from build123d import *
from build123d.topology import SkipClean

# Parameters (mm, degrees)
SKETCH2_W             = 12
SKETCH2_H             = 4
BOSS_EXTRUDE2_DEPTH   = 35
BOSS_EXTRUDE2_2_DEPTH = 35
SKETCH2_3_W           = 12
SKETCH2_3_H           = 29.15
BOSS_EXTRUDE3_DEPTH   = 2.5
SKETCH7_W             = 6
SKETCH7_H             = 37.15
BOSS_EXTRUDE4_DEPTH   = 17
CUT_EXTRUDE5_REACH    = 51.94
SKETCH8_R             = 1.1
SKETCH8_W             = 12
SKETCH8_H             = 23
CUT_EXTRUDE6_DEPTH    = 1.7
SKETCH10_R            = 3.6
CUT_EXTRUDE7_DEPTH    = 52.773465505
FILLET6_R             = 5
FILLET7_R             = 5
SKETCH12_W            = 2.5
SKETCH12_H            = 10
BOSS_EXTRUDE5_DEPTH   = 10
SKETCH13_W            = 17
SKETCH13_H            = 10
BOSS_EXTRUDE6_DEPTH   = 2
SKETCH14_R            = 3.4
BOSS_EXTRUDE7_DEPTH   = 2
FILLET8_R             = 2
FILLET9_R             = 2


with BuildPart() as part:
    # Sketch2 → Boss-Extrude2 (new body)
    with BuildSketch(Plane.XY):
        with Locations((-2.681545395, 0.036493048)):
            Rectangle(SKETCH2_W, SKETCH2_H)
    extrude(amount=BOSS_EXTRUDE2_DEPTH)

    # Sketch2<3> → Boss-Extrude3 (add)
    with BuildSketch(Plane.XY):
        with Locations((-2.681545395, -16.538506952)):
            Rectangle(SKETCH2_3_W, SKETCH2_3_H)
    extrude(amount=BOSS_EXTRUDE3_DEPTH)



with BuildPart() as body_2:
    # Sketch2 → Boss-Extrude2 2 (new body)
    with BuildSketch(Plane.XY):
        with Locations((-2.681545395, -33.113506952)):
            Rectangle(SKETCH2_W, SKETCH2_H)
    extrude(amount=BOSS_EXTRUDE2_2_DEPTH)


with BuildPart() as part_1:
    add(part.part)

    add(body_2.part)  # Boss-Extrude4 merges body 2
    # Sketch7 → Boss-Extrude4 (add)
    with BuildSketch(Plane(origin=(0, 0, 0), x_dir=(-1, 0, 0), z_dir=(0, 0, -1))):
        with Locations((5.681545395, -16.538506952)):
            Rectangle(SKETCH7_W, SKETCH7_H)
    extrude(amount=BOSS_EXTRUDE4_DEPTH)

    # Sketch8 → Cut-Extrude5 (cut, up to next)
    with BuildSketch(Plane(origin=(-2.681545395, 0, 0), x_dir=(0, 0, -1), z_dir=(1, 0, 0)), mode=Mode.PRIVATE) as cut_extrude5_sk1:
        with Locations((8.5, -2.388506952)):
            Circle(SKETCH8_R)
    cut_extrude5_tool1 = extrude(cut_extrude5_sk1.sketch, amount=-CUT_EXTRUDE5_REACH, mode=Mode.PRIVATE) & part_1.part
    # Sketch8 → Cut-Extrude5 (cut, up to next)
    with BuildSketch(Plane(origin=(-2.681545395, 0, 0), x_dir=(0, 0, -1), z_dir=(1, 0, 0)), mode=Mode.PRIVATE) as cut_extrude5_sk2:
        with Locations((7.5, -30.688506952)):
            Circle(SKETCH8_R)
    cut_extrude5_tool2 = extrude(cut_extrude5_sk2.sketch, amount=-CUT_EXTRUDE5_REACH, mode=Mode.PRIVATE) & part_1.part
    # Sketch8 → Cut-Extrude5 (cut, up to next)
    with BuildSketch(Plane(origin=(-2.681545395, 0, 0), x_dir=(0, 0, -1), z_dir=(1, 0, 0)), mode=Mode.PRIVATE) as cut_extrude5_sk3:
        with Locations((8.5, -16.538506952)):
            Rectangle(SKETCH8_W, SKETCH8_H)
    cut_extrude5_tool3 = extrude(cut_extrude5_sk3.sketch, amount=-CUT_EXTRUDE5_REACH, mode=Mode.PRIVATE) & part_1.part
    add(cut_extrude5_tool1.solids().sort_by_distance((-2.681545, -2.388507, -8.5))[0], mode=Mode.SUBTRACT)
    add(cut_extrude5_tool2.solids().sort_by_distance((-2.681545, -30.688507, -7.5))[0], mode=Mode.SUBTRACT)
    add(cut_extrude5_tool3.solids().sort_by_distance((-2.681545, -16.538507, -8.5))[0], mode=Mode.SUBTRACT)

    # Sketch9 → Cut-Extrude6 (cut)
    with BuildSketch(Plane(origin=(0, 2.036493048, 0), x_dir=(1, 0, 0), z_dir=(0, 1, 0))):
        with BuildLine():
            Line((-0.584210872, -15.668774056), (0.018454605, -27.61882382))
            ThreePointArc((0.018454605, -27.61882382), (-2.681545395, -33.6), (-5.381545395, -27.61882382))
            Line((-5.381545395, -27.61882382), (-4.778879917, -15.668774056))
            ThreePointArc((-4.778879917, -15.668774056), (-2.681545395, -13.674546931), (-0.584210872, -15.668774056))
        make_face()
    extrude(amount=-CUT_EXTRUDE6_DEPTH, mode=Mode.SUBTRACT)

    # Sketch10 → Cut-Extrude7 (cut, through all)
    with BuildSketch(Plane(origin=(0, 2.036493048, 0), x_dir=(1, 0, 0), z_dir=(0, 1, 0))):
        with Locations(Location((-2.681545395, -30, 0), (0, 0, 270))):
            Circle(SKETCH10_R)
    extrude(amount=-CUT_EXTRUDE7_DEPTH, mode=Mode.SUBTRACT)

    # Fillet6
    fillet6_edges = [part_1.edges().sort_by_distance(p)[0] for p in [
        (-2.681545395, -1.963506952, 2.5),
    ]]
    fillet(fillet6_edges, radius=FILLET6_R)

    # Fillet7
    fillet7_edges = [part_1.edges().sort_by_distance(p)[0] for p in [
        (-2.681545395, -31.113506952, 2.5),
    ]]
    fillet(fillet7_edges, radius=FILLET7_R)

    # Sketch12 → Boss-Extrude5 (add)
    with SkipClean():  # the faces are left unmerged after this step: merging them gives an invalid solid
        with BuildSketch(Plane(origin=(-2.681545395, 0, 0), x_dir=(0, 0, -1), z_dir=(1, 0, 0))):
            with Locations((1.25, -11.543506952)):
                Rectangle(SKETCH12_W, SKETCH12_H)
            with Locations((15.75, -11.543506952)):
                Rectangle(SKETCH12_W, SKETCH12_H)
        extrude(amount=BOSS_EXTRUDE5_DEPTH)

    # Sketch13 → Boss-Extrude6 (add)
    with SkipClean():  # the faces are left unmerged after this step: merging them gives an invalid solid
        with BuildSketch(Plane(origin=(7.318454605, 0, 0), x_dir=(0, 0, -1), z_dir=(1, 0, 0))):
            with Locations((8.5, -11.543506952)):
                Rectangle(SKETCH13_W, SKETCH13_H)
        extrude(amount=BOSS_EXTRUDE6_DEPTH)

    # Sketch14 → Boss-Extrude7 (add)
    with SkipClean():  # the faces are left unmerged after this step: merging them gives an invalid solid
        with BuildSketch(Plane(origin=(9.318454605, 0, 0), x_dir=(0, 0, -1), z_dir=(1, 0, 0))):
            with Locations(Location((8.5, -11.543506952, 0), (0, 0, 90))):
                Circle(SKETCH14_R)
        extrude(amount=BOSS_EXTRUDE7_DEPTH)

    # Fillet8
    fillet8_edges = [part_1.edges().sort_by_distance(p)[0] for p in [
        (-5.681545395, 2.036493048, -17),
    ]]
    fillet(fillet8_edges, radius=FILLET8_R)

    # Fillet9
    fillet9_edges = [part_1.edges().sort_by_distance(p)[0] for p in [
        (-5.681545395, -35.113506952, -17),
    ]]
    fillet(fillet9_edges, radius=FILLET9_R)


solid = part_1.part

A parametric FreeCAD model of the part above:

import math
import FreeCAD as App
import Part
import Sketcher

V = App.Vector


def edges_at(feature, points):
    """Names of the edges that pass closest to the given points."""
    edges = feature.Shape.Edges
    near = lambda p: min(range(len(edges)), key=lambda i: edges[i].distToShape(Part.Vertex(*p))[0])
    return sorted({f"Edge{near(p) + 1}" for p in points})


def add_polygon(sketch, points):
    """Adds a closed chain of lines whose ends are joined by coincident constraints."""
    first, n = sketch.GeometryCount, len(points)
    for a, b in zip(points, points[1:] + points[:1]):
        sketch.addGeometry(Part.LineSegment(App.Vector(*a, 0), App.Vector(*b, 0)), False)
    for i in range(n):
        sketch.addConstraint(Sketcher.Constraint("Coincident", first + i, 2, first + (i + 1) % n, 1))

doc = App.newDocument("Part")
params = doc.addObject("Spreadsheet::Sheet", "Params")
for row, (alias, value) in enumerate([
    ("sketch1_width", "12 mm"),
    ("sketch1_height", "4 mm"),
    ("pad1_length", "35 mm"),
    ("sketch2_width", "12 mm"),
    ("sketch2_height", "29.15 mm"),
    ("pad2_length", "2.5 mm"),
    ("sketch3_width", "12 mm"),
    ("sketch3_height", "4 mm"),
    ("pad3_length", "35 mm"),
    ("sketch4_width", "6 mm"),
    ("sketch4_height", "37.15 mm"),
    ("pad4_length", "17 mm"),
    ("sketch5_diameter", "2.2 mm"),
    ("sketch6_diameter", "2.2 mm"),
    ("sketch7_width", "23 mm"),
    ("sketch7_height", "12 mm"),
    ("sketch8_radius", "2.1 mm"),
    ("sketch8_radius2", "3.6 mm"),
    ("pocket4_length", "1.7 mm"),
    ("sketch9_diameter", "7.2 mm"),
    ("fillet_radius", "5 mm"),
    ("fillet2_radius", "5 mm"),
    ("sketch10_width", "10 mm"),
    ("sketch10_height", "2.5 mm"),
    ("pad5_length", "10 mm"),
    ("sketch11_width", "10 mm"),
    ("sketch11_height", "17 mm"),
    ("pad6_length", "2 mm"),
    ("sketch12_diameter", "6.8 mm"),
    ("pad7_length", "2 mm"),
    ("fillet3_radius", "2 mm"),
    ("fillet4_radius", "2 mm"),
], start=1):
    params.set(f"A{row}", alias)
    params.set(f"B{row}", "=" + value)
    params.setAlias(f"B{row}", alias)

body = doc.addObject("PartDesign::Body", "Body")

# Sketch on XY plane
sketch1 = body.newObject("Sketcher::SketchObject", "Sketch")
sketch1.AttachmentSupport = (doc.getObject("XY_Plane"), [""])
sketch1.MapMode = "FlatFace"
add_polygon(sketch1, [(-8.681545, 2.036493), (-8.681545, -1.963507), (3.318455, -1.963507), (3.318455, 2.036493)])  # lines 0-3
sketch1.addConstraint([
    Sketcher.Constraint("Vertical", 0),
    Sketcher.Constraint("Horizontal", 1),
    Sketcher.Constraint("Vertical", 2),
    Sketcher.Constraint("Horizontal", 3),
    Sketcher.Constraint("DistanceX", 1, 1, 1, 2, 12.0),
    Sketcher.Constraint("DistanceY", 0, 2, 0, 1, 4.0),
    Sketcher.Constraint("DistanceX", 0, 2, -1, 1, 8.681545),
    Sketcher.Constraint("DistanceY", 0, 2, -1, 1, 1.963507),
])
sketch1.setExpression("Constraints[8]", "Params.sketch1_width")
sketch1.setExpression("Constraints[9]", "Params.sketch1_height")
pad1 = body.newObject("PartDesign::Pad", "Pad")
pad1.Profile = sketch1
pad1.setExpression("Length", "Params.pad1_length")

# Sketch on XY plane
sketch2 = body.newObject("Sketcher::SketchObject", "Sketch001")
sketch2.AttachmentSupport = (doc.getObject("XY_Plane"), [""])
sketch2.MapMode = "FlatFace"
add_polygon(sketch2, [(-8.681545, -1.963507), (-8.681545, -31.113507), (3.318455, -31.113507), (3.318455, -1.963507)])  # lines 0-3
sketch2.addConstraint([
    Sketcher.Constraint("Vertical", 0),
    Sketcher.Constraint("Horizontal", 1),
    Sketcher.Constraint("Vertical", 2),
    Sketcher.Constraint("Horizontal", 3),
    Sketcher.Constraint("DistanceX", 1, 1, 1, 2, 12.0),
    Sketcher.Constraint("DistanceY", 0, 2, 0, 1, 29.15),
    Sketcher.Constraint("DistanceX", 0, 2, -1, 1, 8.681545),
    Sketcher.Constraint("DistanceY", 0, 2, -1, 1, 31.113507),
])
sketch2.setExpression("Constraints[8]", "Params.sketch2_width")
sketch2.setExpression("Constraints[9]", "Params.sketch2_height")
pad2 = body.newObject("PartDesign::Pad", "Pad001")
pad2.Profile = sketch2
pad2.setExpression("Length", "Params.pad2_length")
body2 = doc.addObject("PartDesign::Body", "Body001")

# Sketch on XY plane
sketch3 = body2.newObject("Sketcher::SketchObject", "Sketch002")
sketch3.AttachmentSupport = (doc.getObject("XY_Plane001"), [""])
sketch3.MapMode = "FlatFace"
add_polygon(sketch3, [(-8.681545, -31.113507), (-8.681545, -35.113507), (3.318455, -35.113507), (3.318455, -31.113507)])  # lines 0-3
sketch3.addConstraint([
    Sketcher.Constraint("Vertical", 0),
    Sketcher.Constraint("Horizontal", 1),
    Sketcher.Constraint("Vertical", 2),
    Sketcher.Constraint("Horizontal", 3),
    Sketcher.Constraint("DistanceX", 1, 1, 1, 2, 12.0),
    Sketcher.Constraint("DistanceY", 0, 2, 0, 1, 4.0),
    Sketcher.Constraint("DistanceX", 0, 2, -1, 1, 8.681545),
    Sketcher.Constraint("DistanceY", 0, 2, -1, 1, 35.113507),
])
sketch3.setExpression("Constraints[8]", "Params.sketch3_width")
sketch3.setExpression("Constraints[9]", "Params.sketch3_height")
pad3 = body2.newObject("PartDesign::Pad", "Pad002")
pad3.Profile = sketch3
pad3.setExpression("Length", "Params.pad3_length")
doc.recompute()

boolean = body.newObject("PartDesign::Boolean", "Boolean")
boolean.Type = "Fuse"
boolean.addObjects([body2])

# Sketch on XY plane
sketch4 = body.newObject("Sketcher::SketchObject", "Sketch003")
sketch4.AttachmentSupport = (doc.getObject("XY_Plane"), [""])
sketch4.MapMode = "FlatFace"
add_polygon(sketch4, [(-2.681545, 2.036493), (-2.681545, -35.113507), (-8.681545, -35.113507), (-8.681545, 2.036493)])  # lines 0-3
sketch4.addConstraint([
    Sketcher.Constraint("Vertical", 0),
    Sketcher.Constraint("Horizontal", 1),
    Sketcher.Constraint("Vertical", 2),
    Sketcher.Constraint("Horizontal", 3),
    Sketcher.Constraint("DistanceX", 1, 2, 1, 1, 6.0),
    Sketcher.Constraint("DistanceY", 0, 2, 0, 1, 37.15),
    Sketcher.Constraint("DistanceX", 0, 2, -1, 1, 2.681545),
    Sketcher.Constraint("DistanceY", 0, 2, -1, 1, 35.113507),
])
sketch4.setExpression("Constraints[8]", "Params.sketch4_width")
sketch4.setExpression("Constraints[9]", "Params.sketch4_height")
pad4 = body.newObject("PartDesign::Pad", "Pad003")
pad4.Profile = sketch4
pad4.setExpression("Length", "Params.pad4_length")
pad4.Reversed = True

# Sketch on YZ plane
sketch5 = body.newObject("Sketcher::SketchObject", "Sketch004")
sketch5.AttachmentSupport = (doc.getObject("YZ_Plane"), [""])
sketch5.MapMode = "FlatFace"
sketch5.AttachmentOffset = App.Placement(V(0, 0, -2.681545), App.Rotation())
sketch5.addGeometry(Part.Circle(V(-2.388507, -8.5, 0), V(0, 0, 1), 1.1), False)
sketch5.addConstraint([
    Sketcher.Constraint("Diameter", 0, 2.2),
    Sketcher.Constraint("DistanceY", 0, 3, -1, 1, 8.5),
    Sketcher.Constraint("DistanceX", 0, 3, -1, 1, 2.388507),
])
sketch5.setExpression("Constraints[0]", "Params.sketch5_diameter")
pocket1 = body.newObject("PartDesign::Pocket", "Pocket")
pocket1.Profile = sketch5
pocket1.Type = "UpToFirst"

# Sketch on YZ plane
sketch6 = body.newObject("Sketcher::SketchObject", "Sketch005")
sketch6.AttachmentSupport = (doc.getObject("YZ_Plane"), [""])
sketch6.MapMode = "FlatFace"
sketch6.AttachmentOffset = App.Placement(V(0, 0, -2.681545), App.Rotation())
sketch6.addGeometry(Part.Circle(V(-30.688507, -7.5, 0), V(0, 0, 1), 1.1), False)
sketch6.addConstraint([
    Sketcher.Constraint("Diameter", 0, 2.2),
    Sketcher.Constraint("DistanceY", 0, 3, -1, 1, 7.5),
    Sketcher.Constraint("DistanceX", 0, 3, -1, 1, 30.688507),
])
sketch6.setExpression("Constraints[0]", "Params.sketch6_diameter")
pocket2 = body.newObject("PartDesign::Pocket", "Pocket001")
pocket2.Profile = sketch6
pocket2.Type = "UpToFirst"

# Sketch on YZ plane
sketch7 = body.newObject("Sketcher::SketchObject", "Sketch006")
sketch7.AttachmentSupport = (doc.getObject("YZ_Plane"), [""])
sketch7.MapMode = "FlatFace"
sketch7.AttachmentOffset = App.Placement(V(0, 0, -2.681545), App.Rotation())
add_polygon(sketch7, [(-5.038507, -2.5), (-28.038507, -2.5), (-28.038507, -14.5), (-5.038507, -14.5)])  # lines 0-3
sketch7.addConstraint([
    Sketcher.Constraint("Horizontal", 0),
    Sketcher.Constraint("Vertical", 1),
    Sketcher.Constraint("Horizontal", 2),
    Sketcher.Constraint("Vertical", 3),
    Sketcher.Constraint("DistanceX", 0, 2, 0, 1, 23.0),
    Sketcher.Constraint("DistanceY", 1, 2, 1, 1, 12.0),
    Sketcher.Constraint("DistanceY", 0, 2, -1, 1, 2.5),
    Sketcher.Constraint("DistanceX", 0, 2, -1, 1, 28.038507),
])
sketch7.setExpression("Constraints[8]", "Params.sketch7_width")
sketch7.setExpression("Constraints[9]", "Params.sketch7_height")
pocket3 = body.newObject("PartDesign::Pocket", "Pocket002")
pocket3.Profile = sketch7
pocket3.Type = "UpToFirst"

# Sketch on XZ plane
sketch8 = body.newObject("Sketcher::SketchObject", "Sketch007")
sketch8.AttachmentSupport = (doc.getObject("XZ_Plane"), [""])
sketch8.MapMode = "FlatFace"
sketch8.AttachmentOffset = App.Placement(V(0, 0, -2.036493), App.Rotation())
sketch8.addGeometry([
    Part.LineSegment(V(0.018455, 27.618824, 0), V(-0.584211, 15.668774, 0)),
    Part.ArcOfCircle(Part.Circle(V(-2.681545, 15.774547, 0), V(0, 0, 1), 2.1), math.radians(-177.112903), math.radians(-2.887097)),
    Part.LineSegment(V(-4.77888, 15.668774, 0), V(-5.381545, 27.618824, 0)),
    Part.ArcOfCircle(Part.Circle(V(-2.681545, 30, 0), V(0, 0, 1), 3.6), math.radians(-41.409622), math.radians(221.409622)),
], False)
sketch8.addConstraint([
    Sketcher.Constraint("Tangent", 0, 2, 1, 2),
    Sketcher.Constraint("Tangent", 1, 1, 2, 1),
    Sketcher.Constraint("Coincident", 2, 2, 3, 2),
    Sketcher.Constraint("Coincident", 3, 1, 0, 1),
    Sketcher.Constraint("Horizontal", 0, 2, 1, 1),
    Sketcher.Constraint("Horizontal", 2, 2, 3, 1),
    Sketcher.Constraint("Radius", 1, 2.1),
    Sketcher.Constraint("Radius", 3, 3.6),
    Sketcher.Constraint("DistanceY", -1, 1, 3, 3, 30.0),
    Sketcher.Constraint("DistanceX", 2, 2, 3, 3, 2.7),
    Sketcher.Constraint("DistanceX", 0, 2, -1, 1, 0.584211),
    Sketcher.Constraint("DistanceY", 1, 1, 2, 2, 11.95005),
])
sketch8.setExpression("Constraints[6]", "Params.sketch8_radius")
sketch8.setExpression("Constraints[7]", "Params.sketch8_radius2")
pocket4 = body.newObject("PartDesign::Pocket", "Pocket003")
pocket4.Profile = sketch8
pocket4.setExpression("Length", "Params.pocket4_length")
pocket4.Reversed = True

# Sketch on XZ plane
sketch9 = body.newObject("Sketcher::SketchObject", "Sketch008")
sketch9.AttachmentSupport = (doc.getObject("XZ_Plane"), [""])
sketch9.MapMode = "FlatFace"
sketch9.AttachmentOffset = App.Placement(V(0, 0, -2.036493), App.Rotation())
sketch9.addGeometry(Part.Circle(V(-2.681545, 30, 0), V(0, 0, 1), 3.6), False)
sketch9.addConstraint([
    Sketcher.Constraint("Diameter", 0, 7.2),
    Sketcher.Constraint("DistanceY", -1, 1, 0, 3, 30.0),
    Sketcher.Constraint("DistanceX", 0, 3, -1, 1, 2.681545),
])
sketch9.setExpression("Constraints[0]", "Params.sketch9_diameter")
pocket5 = body.newObject("PartDesign::Pocket", "Pocket004")
pocket5.Profile = sketch9
pocket5.Type = "ThroughAll"
pocket5.Reversed = True
doc.recompute()

fillet = body.newObject("PartDesign::Fillet", "Fillet")
fillet.Base = (pocket5, edges_at(pocket5, [(-2.682, -1.964, 2.5)]))
fillet.setExpression("Radius", "Params.fillet_radius")
doc.recompute()

fillet2 = body.newObject("PartDesign::Fillet", "Fillet001")
fillet2.Base = (fillet, edges_at(fillet, [(-2.682, -31.114, 2.5)]))
fillet2.setExpression("Radius", "Params.fillet2_radius")

# Sketch on YZ plane
sketch10 = body.newObject("Sketcher::SketchObject", "Sketch009")
sketch10.AttachmentSupport = (doc.getObject("YZ_Plane"), [""])
sketch10.MapMode = "FlatFace"
sketch10.AttachmentOffset = App.Placement(V(0, 0, -2.681545), App.Rotation())
add_polygon(sketch10, [(-6.543507, 0), (-16.543507, 0), (-16.543507, -2.5), (-6.543507, -2.5)])  # lines 0-3
add_polygon(sketch10, [(-6.543507, -14.5), (-16.543507, -14.5), (-16.543507, -17), (-6.543507, -17)])  # lines 4-7
sketch10.addConstraint([
    Sketcher.Constraint("Horizontal", 0),
    Sketcher.Constraint("Vertical", 1),
    Sketcher.Constraint("Horizontal", 2),
    Sketcher.Constraint("Vertical", 3),
    Sketcher.Constraint("Horizontal", 4),
    Sketcher.Constraint("Vertical", 5),
    Sketcher.Constraint("Horizontal", 6),
    Sketcher.Constraint("Vertical", 7),
    Sketcher.Constraint("PointOnObject", 0, 2, -1),
    Sketcher.Constraint("Vertical", 1, 2, 4, 2),
    Sketcher.Constraint("Vertical", 3, 2, 6, 2),
    Sketcher.Constraint("Equal", 3, 5),
    Sketcher.Constraint("DistanceX", 0, 2, 0, 1, 10.0),
    Sketcher.Constraint("DistanceY", 1, 2, 1, 1, 2.5),
    Sketcher.Constraint("DistanceY", 5, 2, -1, 1, 17.0),
    Sketcher.Constraint("DistanceX", 0, 2, -1, 1, 16.543507),
])
sketch10.setExpression("Constraints[20]", "Params.sketch10_width")
sketch10.setExpression("Constraints[21]", "Params.sketch10_height")
pad5 = body.newObject("PartDesign::Pad", "Pad004")
pad5.Profile = sketch10
pad5.setExpression("Length", "Params.pad5_length")

# Sketch on YZ plane
sketch11 = body.newObject("Sketcher::SketchObject", "Sketch010")
sketch11.AttachmentSupport = (doc.getObject("YZ_Plane"), [""])
sketch11.MapMode = "FlatFace"
sketch11.AttachmentOffset = App.Placement(V(0, 0, 7.318455), App.Rotation())
add_polygon(sketch11, [(-6.543507, 0), (-16.543507, 0), (-16.543507, -17), (-6.543507, -17)])  # lines 0-3
sketch11.addConstraint([
    Sketcher.Constraint("Horizontal", 0),
    Sketcher.Constraint("Vertical", 1),
    Sketcher.Constraint("Horizontal", 2),
    Sketcher.Constraint("Vertical", 3),
    Sketcher.Constraint("PointOnObject", 0, 2, -1),
    Sketcher.Constraint("DistanceX", 0, 2, 0, 1, 10.0),
    Sketcher.Constraint("DistanceY", 1, 2, 1, 1, 17.0),
    Sketcher.Constraint("DistanceX", 0, 2, -1, 1, 16.543507),
])
sketch11.setExpression("Constraints[9]", "Params.sketch11_width")
sketch11.setExpression("Constraints[10]", "Params.sketch11_height")
pad6 = body.newObject("PartDesign::Pad", "Pad005")
pad6.Profile = sketch11
pad6.setExpression("Length", "Params.pad6_length")

# Sketch on YZ plane
sketch12 = body.newObject("Sketcher::SketchObject", "Sketch011")
sketch12.AttachmentSupport = (doc.getObject("YZ_Plane"), [""])
sketch12.MapMode = "FlatFace"
sketch12.AttachmentOffset = App.Placement(V(0, 0, 9.318455), App.Rotation())
sketch12.addGeometry(Part.Circle(V(-11.543507, -8.5, 0), V(0, 0, 1), 3.4), False)
sketch12.addConstraint([
    Sketcher.Constraint("Diameter", 0, 6.8),
    Sketcher.Constraint("DistanceY", 0, 3, -1, 1, 8.5),
    Sketcher.Constraint("DistanceX", 0, 3, -1, 1, 11.543507),
])
sketch12.setExpression("Constraints[0]", "Params.sketch12_diameter")
pad7 = body.newObject("PartDesign::Pad", "Pad006")
pad7.Profile = sketch12
pad7.setExpression("Length", "Params.pad7_length")
doc.recompute()

fillet3 = body.newObject("PartDesign::Fillet", "Fillet002")
fillet3.Base = (pad7, edges_at(pad7, [(-5.682, 2.036, -17)]))
fillet3.setExpression("Radius", "Params.fillet3_radius")
doc.recompute()

fillet4 = body.newObject("PartDesign::Fillet", "Fillet003")
fillet4.Base = (fillet3, edges_at(fillet3, [(-5.682, -35.114, -17)]))
fillet4.setExpression("Radius", "Params.fillet4_radius")

doc.recompute()
